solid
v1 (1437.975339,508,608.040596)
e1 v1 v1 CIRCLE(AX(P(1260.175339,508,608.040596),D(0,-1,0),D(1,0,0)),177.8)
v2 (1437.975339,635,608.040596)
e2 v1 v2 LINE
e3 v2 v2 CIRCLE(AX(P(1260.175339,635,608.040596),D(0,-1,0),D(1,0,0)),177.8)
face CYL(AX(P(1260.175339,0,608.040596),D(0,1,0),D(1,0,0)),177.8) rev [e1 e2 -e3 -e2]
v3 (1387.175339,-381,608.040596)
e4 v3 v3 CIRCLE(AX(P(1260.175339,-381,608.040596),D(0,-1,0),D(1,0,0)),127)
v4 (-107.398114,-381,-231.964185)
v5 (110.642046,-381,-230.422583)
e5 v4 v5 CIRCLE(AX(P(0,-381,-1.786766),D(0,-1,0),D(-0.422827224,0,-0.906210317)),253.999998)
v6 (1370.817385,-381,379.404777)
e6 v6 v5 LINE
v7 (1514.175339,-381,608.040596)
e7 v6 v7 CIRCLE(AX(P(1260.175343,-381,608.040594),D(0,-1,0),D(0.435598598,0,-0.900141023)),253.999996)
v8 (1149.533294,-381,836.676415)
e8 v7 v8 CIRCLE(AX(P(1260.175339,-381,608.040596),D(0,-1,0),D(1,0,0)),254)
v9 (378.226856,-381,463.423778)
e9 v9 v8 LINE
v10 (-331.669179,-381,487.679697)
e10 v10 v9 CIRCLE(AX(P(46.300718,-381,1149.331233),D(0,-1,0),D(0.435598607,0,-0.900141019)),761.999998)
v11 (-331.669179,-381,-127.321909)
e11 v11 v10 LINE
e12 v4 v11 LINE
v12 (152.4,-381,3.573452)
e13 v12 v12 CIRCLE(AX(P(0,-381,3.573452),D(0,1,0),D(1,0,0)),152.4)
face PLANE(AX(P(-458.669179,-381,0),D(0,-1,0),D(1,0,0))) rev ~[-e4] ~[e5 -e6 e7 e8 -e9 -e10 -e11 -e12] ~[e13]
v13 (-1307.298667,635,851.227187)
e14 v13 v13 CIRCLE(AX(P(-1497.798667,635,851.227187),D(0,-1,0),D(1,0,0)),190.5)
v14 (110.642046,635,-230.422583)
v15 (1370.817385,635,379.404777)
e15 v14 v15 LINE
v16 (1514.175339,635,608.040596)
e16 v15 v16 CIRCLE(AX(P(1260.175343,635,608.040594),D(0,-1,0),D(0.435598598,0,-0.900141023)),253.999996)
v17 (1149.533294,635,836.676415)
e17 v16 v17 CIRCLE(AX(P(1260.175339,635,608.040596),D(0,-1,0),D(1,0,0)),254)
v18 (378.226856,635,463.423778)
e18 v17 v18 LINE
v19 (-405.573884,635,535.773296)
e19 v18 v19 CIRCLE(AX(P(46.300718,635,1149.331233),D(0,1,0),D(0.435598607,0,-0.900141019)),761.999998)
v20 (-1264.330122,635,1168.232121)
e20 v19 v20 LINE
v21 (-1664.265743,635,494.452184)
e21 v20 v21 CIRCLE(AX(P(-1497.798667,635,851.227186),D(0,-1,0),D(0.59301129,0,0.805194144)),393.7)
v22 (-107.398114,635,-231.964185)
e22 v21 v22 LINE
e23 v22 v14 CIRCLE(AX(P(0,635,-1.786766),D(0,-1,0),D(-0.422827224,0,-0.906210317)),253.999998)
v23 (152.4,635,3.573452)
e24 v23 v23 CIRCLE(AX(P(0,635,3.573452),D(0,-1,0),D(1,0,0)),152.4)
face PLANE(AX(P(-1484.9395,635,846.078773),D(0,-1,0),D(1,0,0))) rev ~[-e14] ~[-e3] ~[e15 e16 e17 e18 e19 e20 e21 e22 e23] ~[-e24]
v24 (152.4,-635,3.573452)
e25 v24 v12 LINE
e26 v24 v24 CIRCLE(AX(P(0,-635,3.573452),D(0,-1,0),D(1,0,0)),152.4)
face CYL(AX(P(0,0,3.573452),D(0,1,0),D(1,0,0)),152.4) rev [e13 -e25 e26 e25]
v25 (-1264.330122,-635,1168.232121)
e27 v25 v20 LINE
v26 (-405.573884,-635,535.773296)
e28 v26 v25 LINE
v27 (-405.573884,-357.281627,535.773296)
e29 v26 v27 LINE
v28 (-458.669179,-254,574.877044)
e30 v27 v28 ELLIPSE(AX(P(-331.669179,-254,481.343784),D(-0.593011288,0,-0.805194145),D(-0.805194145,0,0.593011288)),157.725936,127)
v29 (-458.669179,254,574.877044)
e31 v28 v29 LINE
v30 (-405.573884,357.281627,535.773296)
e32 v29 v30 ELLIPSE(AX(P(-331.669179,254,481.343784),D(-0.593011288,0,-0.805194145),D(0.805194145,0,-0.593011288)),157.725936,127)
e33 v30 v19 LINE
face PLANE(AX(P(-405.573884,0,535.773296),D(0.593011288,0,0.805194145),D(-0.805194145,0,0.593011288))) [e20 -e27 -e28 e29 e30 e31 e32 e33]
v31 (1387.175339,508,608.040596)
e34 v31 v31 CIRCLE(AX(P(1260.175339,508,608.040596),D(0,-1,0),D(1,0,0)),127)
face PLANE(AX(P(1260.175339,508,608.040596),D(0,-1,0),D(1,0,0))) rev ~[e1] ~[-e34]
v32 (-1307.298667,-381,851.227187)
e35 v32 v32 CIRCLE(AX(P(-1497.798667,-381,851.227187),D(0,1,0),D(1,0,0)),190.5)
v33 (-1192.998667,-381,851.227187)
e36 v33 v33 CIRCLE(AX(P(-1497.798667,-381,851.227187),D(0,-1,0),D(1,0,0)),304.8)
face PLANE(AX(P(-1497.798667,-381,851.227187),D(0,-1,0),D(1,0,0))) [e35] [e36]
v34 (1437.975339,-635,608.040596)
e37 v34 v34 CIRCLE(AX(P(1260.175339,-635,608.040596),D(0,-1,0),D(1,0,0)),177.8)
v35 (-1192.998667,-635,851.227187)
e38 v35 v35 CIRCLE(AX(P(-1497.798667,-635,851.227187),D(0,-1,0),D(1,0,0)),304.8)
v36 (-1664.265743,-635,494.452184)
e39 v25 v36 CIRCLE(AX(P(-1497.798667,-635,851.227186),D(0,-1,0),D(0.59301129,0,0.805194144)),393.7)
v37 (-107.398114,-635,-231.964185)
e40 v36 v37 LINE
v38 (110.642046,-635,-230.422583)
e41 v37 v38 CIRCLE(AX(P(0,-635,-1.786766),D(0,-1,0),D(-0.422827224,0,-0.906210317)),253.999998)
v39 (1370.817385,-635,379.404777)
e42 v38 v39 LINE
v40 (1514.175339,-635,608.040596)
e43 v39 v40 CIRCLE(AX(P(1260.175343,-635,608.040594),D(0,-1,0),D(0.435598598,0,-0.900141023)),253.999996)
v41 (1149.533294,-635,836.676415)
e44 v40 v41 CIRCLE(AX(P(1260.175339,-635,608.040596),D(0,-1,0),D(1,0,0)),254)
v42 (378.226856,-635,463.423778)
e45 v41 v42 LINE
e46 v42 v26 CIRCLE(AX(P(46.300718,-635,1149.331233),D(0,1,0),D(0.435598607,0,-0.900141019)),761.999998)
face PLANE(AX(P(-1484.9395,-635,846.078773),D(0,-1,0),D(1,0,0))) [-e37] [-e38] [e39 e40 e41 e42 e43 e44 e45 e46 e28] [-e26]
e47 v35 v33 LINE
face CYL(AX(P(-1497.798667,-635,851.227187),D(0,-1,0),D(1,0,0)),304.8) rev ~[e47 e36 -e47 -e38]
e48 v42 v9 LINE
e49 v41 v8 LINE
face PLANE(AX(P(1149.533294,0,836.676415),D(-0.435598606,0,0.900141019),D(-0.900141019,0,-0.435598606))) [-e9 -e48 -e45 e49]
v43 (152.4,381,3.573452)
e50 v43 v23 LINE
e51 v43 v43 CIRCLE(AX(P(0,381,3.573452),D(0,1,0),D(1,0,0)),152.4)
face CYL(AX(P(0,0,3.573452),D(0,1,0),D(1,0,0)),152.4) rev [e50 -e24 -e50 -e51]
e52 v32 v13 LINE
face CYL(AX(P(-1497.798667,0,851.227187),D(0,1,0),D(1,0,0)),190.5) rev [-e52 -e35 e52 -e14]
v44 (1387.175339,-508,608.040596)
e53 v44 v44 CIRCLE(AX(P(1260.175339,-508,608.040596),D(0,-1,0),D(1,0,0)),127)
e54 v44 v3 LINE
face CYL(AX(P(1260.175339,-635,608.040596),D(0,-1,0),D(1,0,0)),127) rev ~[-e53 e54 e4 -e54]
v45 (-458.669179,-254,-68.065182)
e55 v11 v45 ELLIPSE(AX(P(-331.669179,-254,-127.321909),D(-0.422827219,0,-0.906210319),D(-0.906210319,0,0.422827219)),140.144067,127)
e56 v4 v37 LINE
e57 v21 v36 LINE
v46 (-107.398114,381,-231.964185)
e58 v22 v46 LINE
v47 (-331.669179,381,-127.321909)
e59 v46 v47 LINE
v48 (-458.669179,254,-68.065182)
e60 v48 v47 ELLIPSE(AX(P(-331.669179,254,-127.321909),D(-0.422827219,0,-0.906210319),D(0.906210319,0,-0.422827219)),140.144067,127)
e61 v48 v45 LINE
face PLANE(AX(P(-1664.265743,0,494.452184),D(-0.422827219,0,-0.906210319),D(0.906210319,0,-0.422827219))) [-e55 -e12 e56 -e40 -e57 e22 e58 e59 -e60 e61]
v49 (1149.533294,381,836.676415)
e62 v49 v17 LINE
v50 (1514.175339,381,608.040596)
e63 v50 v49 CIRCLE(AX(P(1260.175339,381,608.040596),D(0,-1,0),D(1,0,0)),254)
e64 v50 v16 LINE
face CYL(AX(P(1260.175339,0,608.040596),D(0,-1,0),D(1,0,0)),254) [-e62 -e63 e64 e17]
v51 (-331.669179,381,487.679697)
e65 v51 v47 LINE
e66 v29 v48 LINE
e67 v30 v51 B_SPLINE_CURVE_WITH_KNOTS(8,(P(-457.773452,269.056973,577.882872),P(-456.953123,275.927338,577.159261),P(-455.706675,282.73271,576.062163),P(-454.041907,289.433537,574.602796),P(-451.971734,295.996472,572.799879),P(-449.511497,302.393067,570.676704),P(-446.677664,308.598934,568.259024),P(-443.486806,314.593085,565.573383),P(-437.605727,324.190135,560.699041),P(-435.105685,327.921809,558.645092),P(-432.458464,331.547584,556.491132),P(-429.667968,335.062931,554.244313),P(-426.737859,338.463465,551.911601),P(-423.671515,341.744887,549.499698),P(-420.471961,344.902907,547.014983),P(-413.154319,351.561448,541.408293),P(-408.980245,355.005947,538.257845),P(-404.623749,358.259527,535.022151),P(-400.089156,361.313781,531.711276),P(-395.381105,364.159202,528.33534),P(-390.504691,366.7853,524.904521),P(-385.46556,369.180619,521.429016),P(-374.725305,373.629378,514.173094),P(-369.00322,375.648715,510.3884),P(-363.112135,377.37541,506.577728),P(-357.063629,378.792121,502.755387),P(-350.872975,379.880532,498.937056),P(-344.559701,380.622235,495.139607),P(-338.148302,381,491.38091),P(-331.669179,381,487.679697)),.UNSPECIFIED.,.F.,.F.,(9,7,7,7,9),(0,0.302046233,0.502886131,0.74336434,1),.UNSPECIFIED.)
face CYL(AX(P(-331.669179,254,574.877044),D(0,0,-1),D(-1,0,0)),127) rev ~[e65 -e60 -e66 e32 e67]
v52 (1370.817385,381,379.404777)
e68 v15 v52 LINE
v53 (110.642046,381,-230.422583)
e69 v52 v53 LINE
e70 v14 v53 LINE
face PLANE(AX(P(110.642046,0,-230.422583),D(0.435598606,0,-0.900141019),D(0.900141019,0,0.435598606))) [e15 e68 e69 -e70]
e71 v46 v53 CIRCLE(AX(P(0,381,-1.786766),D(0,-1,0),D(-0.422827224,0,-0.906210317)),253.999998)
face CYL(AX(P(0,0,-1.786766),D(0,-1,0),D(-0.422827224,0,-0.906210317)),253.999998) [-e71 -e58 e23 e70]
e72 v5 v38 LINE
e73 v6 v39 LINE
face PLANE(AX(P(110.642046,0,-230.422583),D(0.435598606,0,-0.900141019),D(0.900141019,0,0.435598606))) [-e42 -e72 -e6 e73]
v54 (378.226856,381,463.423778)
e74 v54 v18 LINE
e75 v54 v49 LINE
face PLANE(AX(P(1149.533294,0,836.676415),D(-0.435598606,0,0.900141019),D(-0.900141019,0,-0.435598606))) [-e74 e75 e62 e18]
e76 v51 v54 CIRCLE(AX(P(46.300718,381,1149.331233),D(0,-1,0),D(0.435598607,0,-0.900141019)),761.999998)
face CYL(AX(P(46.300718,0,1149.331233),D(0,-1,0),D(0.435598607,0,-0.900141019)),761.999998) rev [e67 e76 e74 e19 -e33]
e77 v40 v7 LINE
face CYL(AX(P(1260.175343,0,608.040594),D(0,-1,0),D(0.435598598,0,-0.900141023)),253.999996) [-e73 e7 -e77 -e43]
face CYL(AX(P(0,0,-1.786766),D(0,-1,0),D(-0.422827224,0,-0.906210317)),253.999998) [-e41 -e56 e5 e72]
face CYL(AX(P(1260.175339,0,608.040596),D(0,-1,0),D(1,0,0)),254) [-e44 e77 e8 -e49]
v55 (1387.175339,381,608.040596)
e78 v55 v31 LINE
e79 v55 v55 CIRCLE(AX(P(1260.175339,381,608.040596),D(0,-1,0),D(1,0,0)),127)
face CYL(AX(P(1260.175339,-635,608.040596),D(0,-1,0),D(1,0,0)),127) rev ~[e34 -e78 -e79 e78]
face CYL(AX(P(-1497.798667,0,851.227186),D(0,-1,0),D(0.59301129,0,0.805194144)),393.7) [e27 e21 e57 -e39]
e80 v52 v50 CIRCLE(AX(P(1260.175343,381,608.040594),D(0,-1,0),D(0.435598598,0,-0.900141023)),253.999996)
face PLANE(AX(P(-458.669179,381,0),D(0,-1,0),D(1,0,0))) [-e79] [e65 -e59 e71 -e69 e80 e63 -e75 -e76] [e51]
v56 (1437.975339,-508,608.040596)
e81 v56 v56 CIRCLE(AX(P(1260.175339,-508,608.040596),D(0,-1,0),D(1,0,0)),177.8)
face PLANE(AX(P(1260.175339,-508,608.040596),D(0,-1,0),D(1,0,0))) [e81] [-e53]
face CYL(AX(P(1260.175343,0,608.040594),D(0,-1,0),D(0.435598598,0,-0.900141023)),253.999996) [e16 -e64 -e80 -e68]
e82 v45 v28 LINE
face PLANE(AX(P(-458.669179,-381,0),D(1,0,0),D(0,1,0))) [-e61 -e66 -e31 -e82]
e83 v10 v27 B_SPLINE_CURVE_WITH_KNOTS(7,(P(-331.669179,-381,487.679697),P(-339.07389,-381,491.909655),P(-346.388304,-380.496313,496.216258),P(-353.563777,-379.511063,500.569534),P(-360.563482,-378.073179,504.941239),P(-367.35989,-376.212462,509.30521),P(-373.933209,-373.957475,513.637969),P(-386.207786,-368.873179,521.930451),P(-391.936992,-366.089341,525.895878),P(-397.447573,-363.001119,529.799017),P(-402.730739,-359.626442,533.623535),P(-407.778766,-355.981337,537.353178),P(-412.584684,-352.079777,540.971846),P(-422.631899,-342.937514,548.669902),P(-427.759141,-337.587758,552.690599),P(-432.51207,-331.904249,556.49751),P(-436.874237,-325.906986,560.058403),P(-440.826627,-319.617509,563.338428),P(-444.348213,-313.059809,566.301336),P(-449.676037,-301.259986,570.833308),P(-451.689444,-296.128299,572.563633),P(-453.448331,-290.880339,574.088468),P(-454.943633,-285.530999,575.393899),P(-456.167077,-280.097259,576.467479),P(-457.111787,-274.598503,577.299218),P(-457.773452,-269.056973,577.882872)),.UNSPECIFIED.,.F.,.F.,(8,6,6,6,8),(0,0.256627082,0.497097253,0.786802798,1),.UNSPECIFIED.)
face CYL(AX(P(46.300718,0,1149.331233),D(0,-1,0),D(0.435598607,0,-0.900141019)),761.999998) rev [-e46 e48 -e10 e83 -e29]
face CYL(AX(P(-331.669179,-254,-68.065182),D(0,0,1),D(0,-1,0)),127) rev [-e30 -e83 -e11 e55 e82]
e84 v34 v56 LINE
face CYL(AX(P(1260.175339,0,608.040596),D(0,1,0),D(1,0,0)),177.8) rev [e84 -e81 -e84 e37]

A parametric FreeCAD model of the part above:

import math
import FreeCAD as App
import Part
import Sketcher

V = App.Vector
Q = App.Units.Quantity


def edges_at(feature, points):
    """Names of the edges that pass closest to the given points."""
    edges = feature.Shape.Edges
    near = lambda p: min(range(len(edges)), key=lambda i: edges[i].distToShape(Part.Vertex(*p))[0])
    return sorted({f"Edge{near(p) + 1}" for p in points})


def add_polygon(sketch, points):
    """Adds a closed chain of lines whose ends are joined by coincident constraints."""
    first, n = sketch.GeometryCount, len(points)
    for a, b in zip(points, points[1:] + points[:1]):
        sketch.addGeometry(Part.LineSegment(App.Vector(*a, 0), App.Vector(*b, 0)), False)
    for i in range(n):
        sketch.addConstraint(Sketcher.Constraint("Coincident", first + i, 2, first + (i + 1) % n, 1))

doc = App.newDocument("Part")
body = doc.addObject("PartDesign::Body", "Body")

# Sketch on XZ plane
sketch1 = body.newObject("Sketcher::SketchObject", "Sketch")
sketch1.AttachmentSupport = (doc.getObject("XZ_Plane"), [""])
sketch1.MapMode = "FlatFace"
sketch1.addGeometry(Part.ArcOfCircle(Part.Circle(V(-1497.798667, 851.227186, 0), V(0, 0, 1), 393.7), math.radians(53.629009), math.radians(244.986789)), False)
sketch1.addGeometry(Part.LineSegment(V(-1664.265743, 494.452184, 0), V(-107.398114, -231.964185, 0)), False)
sketch1.addGeometry(Part.ArcOfCircle(Part.Circle(V(0, -1.786766, 0), V(0, 0, 1), 253.999998), math.radians(-115.013211), math.radians(-64.17661)), False)
sketch1.addGeometry(Part.LineSegment(V(110.642046, -230.422583, 0), V(1370.817385, 379.404777, 0)), False)
sketch1.addGeometry(Part.ArcOfCircle(Part.Circle(V(1260.175343, 608.040594, 0), V(0, 0, 1), 253.999996), math.radians(-64.17661), math.radians(0.000001)), False)
sketch1.addGeometry(Part.ArcOfCircle(Part.Circle(V(1260.175339, 608.040596, 0), V(0, 0, 1), 254), math.radians(0), math.radians(115.82339)), False)
sketch1.addGeometry(Part.LineSegment(V(1149.533294, 836.676415, 0), V(378.226856, 463.423778, 0)), False)
sketch1.addGeometry(Part.ArcOfCircle(Part.Circle(V(46.300718, 1149.331233, 0), V(0, 0, 1), 761.999998), math.radians(-126.370991), math.radians(-64.17661)), False)
sketch1.addGeometry(Part.LineSegment(V(-405.573884, 535.773296, 0), V(-1264.330122, 1168.232121, 0)), False)
sketch1.addGeometry(Part.Circle(V(0, 3.573452, 0), V(0, 0, 1), 152.4), False)
sketch1.addGeometry(Part.Circle(V(-1497.798667, 851.227187, 0), V(0, 0, 1), 190.5), False)
sketch1.addGeometry(Part.Circle(V(1260.175339, 608.040596, 0), V(0, 0, 1), 177.8), False)
sketch1.addConstraint(Sketcher.Constraint("Coincident", 0, 2, 1, 1))
sketch1.addConstraint(Sketcher.Constraint("Coincident", 1, 2, 2, 1))
sketch1.addConstraint(Sketcher.Constraint("Coincident", 2, 2, 3, 1))
sketch1.addConstraint(Sketcher.Constraint("Coincident", 3, 2, 4, 1))
sketch1.addConstraint(Sketcher.Constraint("Coincident", 4, 2, 5, 1))
sketch1.addConstraint(Sketcher.Constraint("Coincident", 5, 2, 6, 1))
sketch1.addConstraint(Sketcher.Constraint("Coincident", 6, 2, 7, 2))
sketch1.addConstraint(Sketcher.Constraint("Coincident", 7, 1, 8, 1))
sketch1.addConstraint(Sketcher.Constraint("Coincident", 8, 2, 0, 1))
sketch1.addConstraint(Sketcher.Constraint("Coincident", 5, 3, 4, 3))
sketch1.addConstraint(Sketcher.Constraint("Coincident", 10, 3, 0, 3))
sketch1.addConstraint(Sketcher.Constraint("Coincident", 11, 3, 4, 3))
sketch1.addConstraint(Sketcher.Constraint("PointOnObject", 2, 3, -2))
sketch1.addConstraint(Sketcher.Constraint("PointOnObject", 9, 3, -2))
sketch1.addConstraint(Sketcher.Constraint("Diameter", 9, Q("12 in")))
sketch1.addConstraint(Sketcher.Constraint("Diameter", 10, Q("15 in")))
sketch1.addConstraint(Sketcher.Constraint("Diameter", 11, Q("14 in")))
sketch1.addConstraint(Sketcher.Constraint("Radius", 2, Q("9.9999999 in")))
sketch1.addConstraint(Sketcher.Constraint("Radius", 4, Q("9.9999999 in")))
sketch1.addConstraint(Sketcher.Constraint("Radius", 7, Q("29.9999999 in")))
sketch1.addConstraint(Sketcher.Constraint("Radius", 0, Q("15.5 in")))
sketch1.addConstraint(Sketcher.Constraint("DistanceY", 2, 3, 7, 3, 1151.117999))
sketch1.addConstraint(Sketcher.Constraint("Distance", 3, 1399.975462))
sketch1.addConstraint(Sketcher.Constraint("Distance", 6, 856.872892))
sketch1.addConstraint(Sketcher.Constraint("DistanceX", -1, 1, 5, 3, 1260.175339))
sketch1.addConstraint(Sketcher.Constraint("DistanceY", -1, 1, 6, 2, 463.423778))
sketch1.addConstraint(Sketcher.Constraint("DistanceX", 8, 2, -1, 1, 1264.330122))
sketch1.addConstraint(Sketcher.Constraint("DistanceY", -1, 1, 8, 2, 1168.232121))
sketch1.addConstraint(Sketcher.Constraint("DistanceY", 2, 3, 4, 3, 609.82736))
sketch1.addConstraint(Sketcher.Constraint("DistanceX", 0, 3, 4, 3, 2757.974009))
sketch1.addConstraint(Sketcher.Constraint("DistanceY", 5, 3, 0, 3, 243.18659))
sketch1.addConstraint(Sketcher.Constraint("DistanceX", 7, 3, 5, 3, 1213.874621))
sketch1.addConstraint(Sketcher.Constraint("DistanceY", 2, 3, 9, 3, 5.360218))
sketch1.addConstraint(Sketcher.Constraint("DistanceY", 2, 3, 0, 2, 496.23895))
sketch1.addConstraint(Sketcher.Constraint("DistanceY", 1, 2, 2, 3, 230.177419))
sketch1.addConstraint(Sketcher.Constraint("DistanceX", 1, 2, 2, 2, 218.04016))
sketch1.addConstraint(Sketcher.Constraint("DistanceY", 3, 2, 4, 2, 228.635819))
sketch1.addConstraint(Sketcher.Constraint("Distance", 8, 1066.520718))
pad1 = body.newObject("PartDesign::Pad", "Pad")
pad1.Profile = sketch1
pad1.Length = Q("50 in")
pad1.Midplane = True

# Sketch on XZ plane
sketch2 = body.newObject("Sketcher::SketchObject", "Sketch001")
sketch2.AttachmentSupport = (doc.getObject("XZ_Plane"), [""])
sketch2.MapMode = "FlatFace"
sketch2.addGeometry(Part.Circle(V(1260, 608, 0), V(0, 0, 1), 178), False)
sketch2.addConstraint(Sketcher.Constraint("Diameter", 0, Q("14 in")))
sketch2.addConstraint(Sketcher.Constraint("DistanceX", -1, 1, 0, 3, 1260.175339))
sketch2.addConstraint(Sketcher.Constraint("DistanceY", -1, 1, 0, 3, 608.040596))
pad2 = body.newObject("PartDesign::Pad", "Pad001")
pad2.Profile = sketch2
pad2.Length = Q("40 in")
pad2.Midplane = True

# Sketch on XZ plane
sketch3 = body.newObject("Sketcher::SketchObject", "Sketch002")
sketch3.AttachmentSupport = (doc.getObject("XZ_Plane"), [""])
sketch3.MapMode = "FlatFace"
sketch3.AttachmentOffset = App.Placement(V(0, 0, 25 * 25.4), App.Rotation())
sketch3.addGeometry(Part.Circle(V(1260, 608, 0), V(0, 0, 1), 127), False)
sketch3.addConstraint(Sketcher.Constraint("Diameter", 0, Q("10 in")))
sketch3.addConstraint(Sketcher.Constraint("DistanceX", -1, 1, 0, 3, 1260.175339))
sketch3.addConstraint(Sketcher.Constraint("DistanceY", -1, 1, 0, 3, 608.040596))
pocket1 = body.newObject("PartDesign::Pocket", "Pocket")
pocket1.Profile = sketch3
pocket1.Type = "ThroughAll"

# Sketch on XZ plane
sketch4 = body.newObject("Sketcher::SketchObject", "Sketch003")
sketch4.AttachmentSupport = (doc.getObject("XZ_Plane"), [""])
sketch4.MapMode = "FlatFace"
sketch4.AttachmentOffset = App.Placement(V(0, 0, 25 * 25.4), App.Rotation())
sketch4.addGeometry(Part.Circle(V(-1498, 851, 0), V(0, 0, 1), 305), False)
sketch4.addConstraint(Sketcher.Constraint("Diameter", 0, Q("24 in")))
sketch4.addConstraint(Sketcher.Constraint("DistanceX", 0, 3, -1, 1, 1497.798667))
sketch4.addConstraint(Sketcher.Constraint("DistanceY", -1, 1, 0, 3, 851.227187))
pocket2 = body.newObject("PartDesign::Pocket", "Pocket001")
pocket2.Profile = sketch4
pocket2.Length = Q("10 in")

# Sketch on XY plane
sketch5 = body.newObject("Sketcher::SketchObject", "Sketch004")
sketch5.AttachmentSupport = (doc.getObject("XY_Plane"), [""])
sketch5.MapMode = "FlatFace"
add_polygon(sketch5, [(-459, 381), (-459, -381), (1827, -381), (1827, 381)])  # lines 0-3
sketch5.addConstraint(Sketcher.Constraint("Vertical", 0))
sketch5.addConstraint(Sketcher.Constraint("Horizontal", 1))
sketch5.addConstraint(Sketcher.Constraint("Vertical", 2))
sketch5.addConstraint(Sketcher.Constraint("Horizontal", 3))
sketch5.addConstraint(Sketcher.Constraint("DistanceX", 1, 1, 1, 2, Q("90 in")))
sketch5.addConstraint(Sketcher.Constraint("DistanceY", 0, 2, 0, 1, Q("30 in")))
sketch5.addConstraint(Sketcher.Constraint("DistanceY", 0, 2, -1, 1, Q("15 in")))
sketch5.addConstraint(Sketcher.Constraint("DistanceX", 0, 2, -1, 1, 458.669179))
pocket3 = body.newObject("PartDesign::Pocket", "Pocket002")
pocket3.Profile = sketch5
pocket3.Length = Q("100 in")
pocket3.Midplane = True
doc.recompute()

fillet = body.newObject("PartDesign::Fillet", "Fillet")
fillet.Base = (pocket3, edges_at(pocket3, [(-458.669, 381, 253.406), (-458.669, -381, 253.406)]))
fillet.Radius = Q("5 in")

doc.recompute()
